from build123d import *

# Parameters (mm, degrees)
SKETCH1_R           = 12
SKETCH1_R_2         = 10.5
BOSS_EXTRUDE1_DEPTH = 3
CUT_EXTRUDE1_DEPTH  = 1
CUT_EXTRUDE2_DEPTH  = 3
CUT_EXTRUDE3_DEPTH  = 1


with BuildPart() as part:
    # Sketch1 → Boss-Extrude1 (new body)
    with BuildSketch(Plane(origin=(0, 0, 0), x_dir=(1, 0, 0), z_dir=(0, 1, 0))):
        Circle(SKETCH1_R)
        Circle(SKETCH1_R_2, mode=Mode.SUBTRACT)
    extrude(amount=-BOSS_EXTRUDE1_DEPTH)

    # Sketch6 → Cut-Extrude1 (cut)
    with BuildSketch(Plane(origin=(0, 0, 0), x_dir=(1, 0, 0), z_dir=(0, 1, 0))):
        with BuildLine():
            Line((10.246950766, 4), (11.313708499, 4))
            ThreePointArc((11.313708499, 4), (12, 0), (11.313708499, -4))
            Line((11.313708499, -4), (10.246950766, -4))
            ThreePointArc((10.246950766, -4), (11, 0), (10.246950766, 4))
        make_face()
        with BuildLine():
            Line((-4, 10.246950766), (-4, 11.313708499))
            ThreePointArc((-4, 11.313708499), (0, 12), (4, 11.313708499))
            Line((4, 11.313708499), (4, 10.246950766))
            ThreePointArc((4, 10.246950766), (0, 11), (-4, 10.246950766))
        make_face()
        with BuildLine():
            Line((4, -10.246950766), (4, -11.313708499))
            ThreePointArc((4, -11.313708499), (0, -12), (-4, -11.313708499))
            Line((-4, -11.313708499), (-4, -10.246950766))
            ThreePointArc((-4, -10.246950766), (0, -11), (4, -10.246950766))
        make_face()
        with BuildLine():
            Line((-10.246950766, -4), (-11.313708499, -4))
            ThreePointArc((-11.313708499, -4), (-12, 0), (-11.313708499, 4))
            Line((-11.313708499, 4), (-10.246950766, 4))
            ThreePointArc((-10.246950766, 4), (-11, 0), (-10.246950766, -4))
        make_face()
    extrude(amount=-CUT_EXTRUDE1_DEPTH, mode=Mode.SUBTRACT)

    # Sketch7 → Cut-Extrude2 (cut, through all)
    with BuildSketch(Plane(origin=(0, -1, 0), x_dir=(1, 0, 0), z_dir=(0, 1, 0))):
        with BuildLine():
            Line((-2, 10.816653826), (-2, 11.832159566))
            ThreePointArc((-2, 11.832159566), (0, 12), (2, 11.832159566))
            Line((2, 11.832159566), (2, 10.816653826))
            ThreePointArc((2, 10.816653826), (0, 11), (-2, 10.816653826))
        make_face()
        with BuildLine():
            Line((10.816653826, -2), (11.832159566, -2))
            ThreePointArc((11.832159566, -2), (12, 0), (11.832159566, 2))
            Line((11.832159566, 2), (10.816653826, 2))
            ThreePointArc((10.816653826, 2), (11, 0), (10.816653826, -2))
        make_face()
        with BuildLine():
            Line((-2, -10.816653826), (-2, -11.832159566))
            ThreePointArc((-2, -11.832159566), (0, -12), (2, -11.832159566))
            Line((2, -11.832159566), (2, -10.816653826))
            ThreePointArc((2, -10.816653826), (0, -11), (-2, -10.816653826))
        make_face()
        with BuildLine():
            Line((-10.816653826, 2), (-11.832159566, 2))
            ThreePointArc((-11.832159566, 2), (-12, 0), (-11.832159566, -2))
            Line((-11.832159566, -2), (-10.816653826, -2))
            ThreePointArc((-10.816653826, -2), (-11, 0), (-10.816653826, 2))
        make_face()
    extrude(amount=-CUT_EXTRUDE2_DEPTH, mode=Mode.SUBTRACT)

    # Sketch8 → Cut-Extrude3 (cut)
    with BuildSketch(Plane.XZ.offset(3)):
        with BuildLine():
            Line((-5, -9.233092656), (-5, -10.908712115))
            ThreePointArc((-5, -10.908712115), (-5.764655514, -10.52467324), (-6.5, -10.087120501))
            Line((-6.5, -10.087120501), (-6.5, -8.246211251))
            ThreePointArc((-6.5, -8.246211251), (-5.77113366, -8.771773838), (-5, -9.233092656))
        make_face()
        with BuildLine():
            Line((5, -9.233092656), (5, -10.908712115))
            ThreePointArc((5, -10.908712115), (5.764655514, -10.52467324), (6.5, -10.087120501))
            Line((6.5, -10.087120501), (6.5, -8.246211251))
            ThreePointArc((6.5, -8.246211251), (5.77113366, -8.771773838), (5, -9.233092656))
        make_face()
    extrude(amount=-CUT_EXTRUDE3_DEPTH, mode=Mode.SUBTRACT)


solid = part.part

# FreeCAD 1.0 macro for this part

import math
import FreeCAD as App
import Part
import Sketcher
from FreeCAD import Vector
Q = App.Units.Quantity

doc = App.newDocument("Part")
body = doc.addObject("PartDesign::Body", "Body")

sketch1 = body.newObject("Sketcher::SketchObject", "Sketch")
sketch1.AttachmentSupport = (doc.getObject("XZ_Plane"), [""])
sketch1.MapMode = "FlatFace"
sketch1.addGeometry(Part.Circle(Vector(0, 0, 0), Vector(0, 0, 1), 12), False)
sketch1.addGeometry(Part.Circle(Vector(0, 0, 0), Vector(0, 0, 1), 10.5), False)
sketch1.addConstraint(Sketcher.Constraint("Coincident", 0, 3, -1, 1))
sketch1.addConstraint(Sketcher.Constraint("Coincident", 1, 3, -1, 1))
sketch1.addConstraint(Sketcher.Constraint("Diameter", 0, Q("24 mm")))
sketch1.addConstraint(Sketcher.Constraint("Diameter", 1, Q("21 mm")))
pad1 = body.newObject("PartDesign::Pad", "Pad")
pad1.Profile = sketch1
pad1.Length = 3

sketch2 = body.newObject("Sketcher::SketchObject", "Sketch001")
sketch2.AttachmentSupport = (doc.getObject("XZ_Plane"), [""])
sketch2.MapMode = "FlatFace"
sketch2.addGeometry(Part.LineSegment(Vector(11.313708, -4, 0), Vector(10.246951, -4, 0)), False)
sketch2.addGeometry(Part.ArcOfCircle(Part.Circle(Vector(0, 0, 0), Vector(0, 0, 1), 11), math.radians(-21.323686), math.radians(21.323686)), False)
sketch2.addGeometry(Part.LineSegment(Vector(10.246951, 4, 0), Vector(11.313708, 4, 0)), False)
sketch2.addGeometry(Part.ArcOfCircle(Part.Circle(Vector(0, 0, 0), Vector(0, 0, 1), 12), math.radians(-19.471221), math.radians(19.471221)), False)
sketch2.addGeometry(Part.LineSegment(Vector(-4, -11.313708, 0), Vector(-4, -10.246951, 0)), False)
sketch2.addGeometry(Part.ArcOfCircle(Part.Circle(Vector(0, 0, 0), Vector(0, 0, 1), 11), math.radians(-111.323686), math.radians(-68.676314)), False)
sketch2.addGeometry(Part.LineSegment(Vector(4, -10.246951, 0), Vector(4, -11.313708, 0)), False)
sketch2.addGeometry(Part.ArcOfCircle(Part.Circle(Vector(0, 0, 0), Vector(0, 0, 1), 12), math.radians(-109.471221), math.radians(-70.528779)), False)
sketch2.addGeometry(Part.LineSegment(Vector(4, 11.313708, 0), Vector(4, 10.246951, 0)), False)
sketch2.addGeometry(Part.ArcOfCircle(Part.Circle(Vector(0, 0, 0), Vector(0, 0, 1), 11), math.radians(68.676314), math.radians(111.323686)), False)
sketch2.addGeometry(Part.LineSegment(Vector(-4, 10.246951, 0), Vector(-4, 11.313708, 0)), False)
sketch2.addGeometry(Part.ArcOfCircle(Part.Circle(Vector(0, 0, 0), Vector(0, 0, 1), 12), math.radians(70.528779), math.radians(109.471221)), False)
sketch2.addGeometry(Part.LineSegment(Vector(-11.313708, 4, 0), Vector(-10.246951, 4, 0)), False)
sketch2.addGeometry(Part.ArcOfCircle(Part.Circle(Vector(0, 0, 0), Vector(0, 0, 1), 11), math.radians(158.676314), math.radians(201.323686)), False)
sketch2.addGeometry(Part.LineSegment(Vector(-10.246951, -4, 0), Vector(-11.313708, -4, 0)), False)
sketch2.addGeometry(Part.ArcOfCircle(Part.Circle(Vector(0, 0, 0), Vector(0, 0, 1), 12), math.radians(160.528779), math.radians(199.471221)), False)
sketch2.addConstraint(Sketcher.Constraint("Coincident", 0, 2, 1, 1))
sketch2.addConstraint(Sketcher.Constraint("Coincident", 1, 2, 2, 1))
sketch2.addConstraint(Sketcher.Constraint("Coincident", 2, 2, 3, 2))
sketch2.addConstraint(Sketcher.Constraint("Coincident", 3, 1, 0, 1))
sketch2.addConstraint(Sketcher.Constraint("Coincident", 4, 2, 5, 1))
sketch2.addConstraint(Sketcher.Constraint("Coincident", 5, 2, 6, 1))
sketch2.addConstraint(Sketcher.Constraint("Coincident", 6, 2, 7, 2))
sketch2.addConstraint(Sketcher.Constraint("Coincident", 7, 1, 4, 1))
sketch2.addConstraint(Sketcher.Constraint("Coincident", 8, 2, 9, 1))
sketch2.addConstraint(Sketcher.Constraint("Coincident", 9, 2, 10, 1))
sketch2.addConstraint(Sketcher.Constraint("Coincident", 10, 2, 11, 2))
sketch2.addConstraint(Sketcher.Constraint("Coincident", 11, 1, 8, 1))
sketch2.addConstraint(Sketcher.Constraint("Coincident", 12, 2, 13, 1))
sketch2.addConstraint(Sketcher.Constraint("Coincident", 13, 2, 14, 1))
sketch2.addConstraint(Sketcher.Constraint("Coincident", 14, 2, 15, 2))
sketch2.addConstraint(Sketcher.Constraint("Coincident", 15, 1, 12, 1))
sketch2.addConstraint(Sketcher.Constraint("Horizontal", 0))
sketch2.addConstraint(Sketcher.Constraint("Horizontal", 2))
sketch2.addConstraint(Sketcher.Constraint("Vertical", 4))
sketch2.addConstraint(Sketcher.Constraint("Vertical", 6))
sketch2.addConstraint(Sketcher.Constraint("Vertical", 8))
sketch2.addConstraint(Sketcher.Constraint("Vertical", 10))
sketch2.addConstraint(Sketcher.Constraint("Horizontal", 12))
sketch2.addConstraint(Sketcher.Constraint("Horizontal", 14))
sketch2.addConstraint(Sketcher.Constraint("Coincident", 1, 3, -1, 1))
sketch2.addConstraint(Sketcher.Constraint("Coincident", 3, 3, -1, 1))
sketch2.addConstraint(Sketcher.Constraint("Coincident", 5, 3, -1, 1))
sketch2.addConstraint(Sketcher.Constraint("Coincident", 7, 3, -1, 1))
sketch2.addConstraint(Sketcher.Constraint("Coincident", 9, 3, -1, 1))
sketch2.addConstraint(Sketcher.Constraint("Coincident", 11, 3, -1, 1))
sketch2.addConstraint(Sketcher.Constraint("Coincident", 13, 3, -1, 1))
sketch2.addConstraint(Sketcher.Constraint("Coincident", 15, 3, -1, 1))
sketch2.addConstraint(Sketcher.Constraint("Equal", 1, 5))
sketch2.addConstraint(Sketcher.Constraint("Equal", 3, 7))
sketch2.addConstraint(Sketcher.Constraint("Equal", 5, 9))
sketch2.addConstraint(Sketcher.Constraint("Equal", 7, 11))
sketch2.addConstraint(Sketcher.Constraint("Equal", 9, 13))
sketch2.addConstraint(Sketcher.Constraint("Equal", 11, 15))
sketch2.addConstraint(Sketcher.Constraint("Horizontal", 4, 2, 5, 2))
sketch2.addConstraint(Sketcher.Constraint("Horizontal", 8, 2, 9, 2))
sketch2.addConstraint(Sketcher.Constraint("Horizontal", 2, 2, 12, 2))
sketch2.addConstraint(Sketcher.Constraint("Horizontal", 3, 1, 13, 2))
sketch2.addConstraint(Sketcher.Constraint("Vertical", 0, 2, 1, 2))
sketch2.addConstraint(Sketcher.Constraint("Vertical", 6, 2, 8, 2))
sketch2.addConstraint(Sketcher.Constraint("Equal", 14, 4))
sketch2.addConstraint(Sketcher.Constraint("Radius", 1, Q("11 mm")))
sketch2.addConstraint(Sketcher.Constraint("Radius", 3, Q("12 mm")))
sketch2.addConstraint(Sketcher.Constraint("DistanceY", 0, 2, -1, 1, Q("4 mm")))
pocket1 = body.newObject("PartDesign::Pocket", "Pocket")
pocket1.Profile = sketch2
pocket1.Length = 1
pocket1.Reversed = True

sketch3 = body.newObject("Sketcher::SketchObject", "Sketch002")
sketch3.AttachmentSupport = (doc.getObject("XZ_Plane"), [""])
sketch3.MapMode = "FlatFace"
sketch3.AttachmentOffset = App.Placement(Vector(0, 0, 1), App.Rotation())
sketch3.addGeometry(Part.LineSegment(Vector(-2, -11.83216, 0), Vector(-2, -10.816654, 0)), False)
sketch3.addGeometry(Part.ArcOfCircle(Part.Circle(Vector(0, 0, 0), Vector(0, 0, 1), 11), math.radians(-100.475682), math.radians(-79.524318)), False)
sketch3.addGeometry(Part.LineSegment(Vector(2, -10.816654, 0), Vector(2, -11.83216, 0)), False)
sketch3.addGeometry(Part.ArcOfCircle(Part.Circle(Vector(0, 0, 0), Vector(0, 0, 1), 12), math.radians(-99.594068), math.radians(-80.405932)), False)
sketch3.addGeometry(Part.LineSegment(Vector(10.816654, 2, 0), Vector(11.83216, 2, 0)), False)
sketch3.addGeometry(Part.ArcOfCircle(Part.Circle(Vector(0, 0, 0), Vector(0, 0, 1), 12), math.radians(-9.594068), math.radians(9.594068)), False)
sketch3.addGeometry(Part.LineSegment(Vector(11.83216, -2, 0), Vector(10.816654, -2, 0)), False)
sketch3.addGeometry(Part.ArcOfCircle(Part.Circle(Vector(0, 0, 0), Vector(0, 0, 1), 11), math.radians(-10.475682), math.radians(10.475682)), False)
sketch3.addGeometry(Part.LineSegment(Vector(-2, 10.816654, 0), Vector(-2, 11.83216, 0)), False)
sketch3.addGeometry(Part.ArcOfCircle(Part.Circle(Vector(0, 0, 0), Vector(0, 0, 1), 12), math.radians(80.405932), math.radians(99.594068)), False)
sketch3.addGeometry(Part.LineSegment(Vector(2, 11.83216, 0), Vector(2, 10.816654, 0)), False)
sketch3.addGeometry(Part.ArcOfCircle(Part.Circle(Vector(0, 0, 0), Vector(0, 0, 1), 11), math.radians(79.524318), math.radians(100.475682)), False)
sketch3.addGeometry(Part.LineSegment(Vector(-10.816654, -2, 0), Vector(-11.83216, -2, 0)), False)
sketch3.addGeometry(Part.ArcOfCircle(Part.Circle(Vector(0, 0, 0), Vector(0, 0, 1), 12), math.radians(170.405932), math.radians(189.594068)), False)
sketch3.addGeometry(Part.LineSegment(Vector(-11.83216, 2, 0), Vector(-10.816654, 2, 0)), False)
sketch3.addGeometry(Part.ArcOfCircle(Part.Circle(Vector(0, 0, 0), Vector(0, 0, 1), 11), math.radians(169.524318), math.radians(190.475682)), False)
sketch3.addConstraint(Sketcher.Constraint("Coincident", 0, 2, 1, 1))
sketch3.addConstraint(Sketcher.Constraint("Coincident", 1, 2, 2, 1))
sketch3.addConstraint(Sketcher.Constraint("Coincident", 2, 2, 3, 2))
sketch3.addConstraint(Sketcher.Constraint("Coincident", 3, 1, 0, 1))
sketch3.addConstraint(Sketcher.Constraint("Coincident", 4, 2, 5, 2))
sketch3.addConstraint(Sketcher.Constraint("Coincident", 5, 1, 6, 1))
sketch3.addConstraint(Sketcher.Constraint("Coincident", 6, 2, 7, 1))
sketch3.addConstraint(Sketcher.Constraint("Coincident", 7, 2, 4, 1))
sketch3.addConstraint(Sketcher.Constraint("Coincident", 8, 2, 9, 2))
sketch3.addConstraint(Sketcher.Constraint("Coincident", 9, 1, 10, 1))
sketch3.addConstraint(Sketcher.Constraint("Coincident", 10, 2, 11, 1))
sketch3.addConstraint(Sketcher.Constraint("Coincident", 11, 2, 8, 1))
sketch3.addConstraint(Sketcher.Constraint("Coincident", 12, 2, 13, 2))
sketch3.addConstraint(Sketcher.Constraint("Coincident", 13, 1, 14, 1))
sketch3.addConstraint(Sketcher.Constraint("Coincident", 14, 2, 15, 1))
sketch3.addConstraint(Sketcher.Constraint("Coincident", 15, 2, 12, 1))
sketch3.addConstraint(Sketcher.Constraint("Vertical", 0))
sketch3.addConstraint(Sketcher.Constraint("Vertical", 2))
sketch3.addConstraint(Sketcher.Constraint("Horizontal", 4))
sketch3.addConstraint(Sketcher.Constraint("Horizontal", 6))
sketch3.addConstraint(Sketcher.Constraint("Vertical", 8))
sketch3.addConstraint(Sketcher.Constraint("Vertical", 10))
sketch3.addConstraint(Sketcher.Constraint("Horizontal", 12))
sketch3.addConstraint(Sketcher.Constraint("Horizontal", 14))
sketch3.addConstraint(Sketcher.Constraint("Coincident", 1, 3, -1, 1))
sketch3.addConstraint(Sketcher.Constraint("Coincident", 3, 3, -1, 1))
sketch3.addConstraint(Sketcher.Constraint("Coincident", 5, 3, -1, 1))
sketch3.addConstraint(Sketcher.Constraint("Coincident", 7, 3, -1, 1))
sketch3.addConstraint(Sketcher.Constraint("Coincident", 9, 3, -1, 1))
sketch3.addConstraint(Sketcher.Constraint("Coincident", 11, 3, -1, 1))
sketch3.addConstraint(Sketcher.Constraint("Coincident", 13, 3, -1, 1))
sketch3.addConstraint(Sketcher.Constraint("Coincident", 15, 3, -1, 1))
sketch3.addConstraint(Sketcher.Constraint("Equal", 3, 5))
sketch3.addConstraint(Sketcher.Constraint("Equal", 1, 7))
sketch3.addConstraint(Sketcher.Constraint("Equal", 5, 9))
sketch3.addConstraint(Sketcher.Constraint("Equal", 7, 11))
sketch3.addConstraint(Sketcher.Constraint("Equal", 9, 13))
sketch3.addConstraint(Sketcher.Constraint("Equal", 11, 15))
sketch3.addConstraint(Sketcher.Constraint("Horizontal", 0, 2, 1, 2))
sketch3.addConstraint(Sketcher.Constraint("Horizontal", 8, 2, 9, 1))
sketch3.addConstraint(Sketcher.Constraint("Horizontal", 6, 2, 12, 2))
sketch3.addConstraint(Sketcher.Constraint("Horizontal", 7, 2, 13, 1))
sketch3.addConstraint(Sketcher.Constraint("Vertical", 4, 2, 5, 1))
sketch3.addConstraint(Sketcher.Constraint("Vertical", 3, 1, 8, 2))
sketch3.addConstraint(Sketcher.Constraint("Equal", 14, 0))
sketch3.addConstraint(Sketcher.Constraint("Radius", 1, Q("11 mm")))
sketch3.addConstraint(Sketcher.Constraint("Radius", 3, Q("12 mm")))
sketch3.addConstraint(Sketcher.Constraint("DistanceX", 0, 2, -1, 1, Q("2 mm")))
pocket2 = body.newObject("PartDesign::Pocket", "Pocket001")
pocket2.Profile = sketch3
pocket2.Type = "ThroughAll"
pocket2.Reversed = True

sketch4 = body.newObject("Sketcher::SketchObject", "Sketch003")
sketch4.AttachmentSupport = (doc.getObject("XZ_Plane"), [""])
sketch4.MapMode = "FlatFace"
sketch4.AttachmentOffset = App.Placement(Vector(0, 0, 3), App.Rotation())
sketch4.addGeometry(Part.LineSegment(Vector(-5, -10.908712, 0), Vector(-5, -9.233093, 0)), False)
sketch4.addGeometry(Part.ArcOfCircle(Part.Circle(Vector(0, 0, 0), Vector(0, 0, 1), 10.5), math.radians(-128.24662), math.radians(-118.43689)), False)
sketch4.addGeometry(Part.LineSegment(Vector(-6.5, -8.246211, 0), Vector(-6.5, -10.087121, 0)), False)
sketch4.addGeometry(Part.ArcOfCircle(Part.Circle(Vector(0, 0, 0), Vector(0, 0, 1), 12), math.radians(-122.797168), math.radians(-114.624318)), False)
sketch4.addGeometry(Part.LineSegment(Vector(5, -9.233093, 0), Vector(5, -10.908712, 0)), False)
sketch4.addGeometry(Part.ArcOfCircle(Part.Circle(Vector(0, 0, 0), Vector(0, 0, 1), 12), math.radians(-65.375682), math.radians(-57.202832)), False)
sketch4.addGeometry(Part.LineSegment(Vector(6.5, -10.087121, 0), Vector(6.5, -8.246211, 0)), False)
sketch4.addGeometry(Part.ArcOfCircle(Part.Circle(Vector(0, 0, 0), Vector(0, 0, 1), 10.5), math.radians(-61.56311), math.radians(-51.75338)), False)
sketch4.addConstraint(Sketcher.Constraint("Coincident", 0, 2, 1, 2))
sketch4.addConstraint(Sketcher.Constraint("Coincident", 1, 1, 2, 1))
sketch4.addConstraint(Sketcher.Constraint("Coincident", 2, 2, 3, 1))
sketch4.addConstraint(Sketcher.Constraint("Coincident", 3, 2, 0, 1))
sketch4.addConstraint(Sketcher.Constraint("Coincident", 4, 2, 5, 1))
sketch4.addConstraint(Sketcher.Constraint("Coincident", 5, 2, 6, 1))
sketch4.addConstraint(Sketcher.Constraint("Coincident", 6, 2, 7, 2))
sketch4.addConstraint(Sketcher.Constraint("Coincident", 7, 1, 4, 1))
sketch4.addConstraint(Sketcher.Constraint("Vertical", 0))
sketch4.addConstraint(Sketcher.Constraint("Vertical", 2))
sketch4.addConstraint(Sketcher.Constraint("Vertical", 4))
sketch4.addConstraint(Sketcher.Constraint("Vertical", 6))
sketch4.addConstraint(Sketcher.Constraint("Coincident", 1, 3, -1, 1))
sketch4.addConstraint(Sketcher.Constraint("Coincident", 3, 3, -1, 1))
sketch4.addConstraint(Sketcher.Constraint("Coincident", 5, 3, -1, 1))
sketch4.addConstraint(Sketcher.Constraint("Coincident", 7, 3, -1, 1))
sketch4.addConstraint(Sketcher.Constraint("Equal", 3, 5))
sketch4.addConstraint(Sketcher.Constraint("Equal", 1, 7))
sketch4.addConstraint(Sketcher.Constraint("Horizontal", 3, 2, 4, 2))
sketch4.addConstraint(Sketcher.Constraint("Horizontal", 2, 2, 5, 2))
sketch4.addConstraint(Sketcher.Constraint("Radius", 3, Q("12 mm")))
sketch4.addConstraint(Sketcher.Constraint("Radius", 1, Q("10.5 mm")))
sketch4.addConstraint(Sketcher.Constraint("DistanceX", 0, 2, -1, 1, Q("5 mm")))
sketch4.addConstraint(Sketcher.Constraint("DistanceX", 1, 1, -1, 1, Q("6.5 mm")))
pocket3 = body.newObject("PartDesign::Pocket", "Pocket002")
pocket3.Profile = sketch4
pocket3.Length = 1

doc.recompute()
